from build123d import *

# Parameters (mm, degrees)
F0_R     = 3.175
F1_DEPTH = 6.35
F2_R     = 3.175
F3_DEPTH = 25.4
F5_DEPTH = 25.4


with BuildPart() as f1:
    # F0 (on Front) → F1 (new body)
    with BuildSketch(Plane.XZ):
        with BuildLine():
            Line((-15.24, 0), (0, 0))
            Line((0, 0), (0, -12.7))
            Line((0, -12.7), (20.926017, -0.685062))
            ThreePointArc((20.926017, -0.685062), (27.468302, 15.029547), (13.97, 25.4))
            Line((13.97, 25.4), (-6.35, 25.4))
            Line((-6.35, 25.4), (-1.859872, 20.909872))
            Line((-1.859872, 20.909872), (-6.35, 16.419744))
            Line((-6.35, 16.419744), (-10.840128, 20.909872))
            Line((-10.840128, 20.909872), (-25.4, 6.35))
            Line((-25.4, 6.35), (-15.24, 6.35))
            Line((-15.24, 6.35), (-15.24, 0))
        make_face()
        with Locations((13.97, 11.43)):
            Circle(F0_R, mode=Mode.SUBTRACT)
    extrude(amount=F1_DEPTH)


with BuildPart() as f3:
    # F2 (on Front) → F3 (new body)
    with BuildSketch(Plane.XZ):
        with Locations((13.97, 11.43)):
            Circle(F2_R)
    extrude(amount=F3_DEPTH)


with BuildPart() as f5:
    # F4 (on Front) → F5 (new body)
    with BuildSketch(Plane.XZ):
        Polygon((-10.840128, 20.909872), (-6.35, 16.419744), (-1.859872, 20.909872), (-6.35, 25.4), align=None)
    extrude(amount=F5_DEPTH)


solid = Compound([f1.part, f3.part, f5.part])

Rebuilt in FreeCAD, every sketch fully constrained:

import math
import FreeCAD as App
import Part
import Sketcher
Q = App.Units.Quantity


def add_polygon(sketch, points):
    """Adds a closed chain of lines whose ends are joined by coincident constraints."""
    first, n = sketch.GeometryCount, len(points)
    for a, b in zip(points, points[1:] + points[:1]):
        sketch.addGeometry(Part.LineSegment(App.Vector(*a, 0), App.Vector(*b, 0)), False)
    for i in range(n):
        sketch.addConstraint(Sketcher.Constraint("Coincident", first + i, 2, first + (i + 1) % n, 1))

doc = App.newDocument("Part")
body = doc.addObject("PartDesign::Body", "Body")

sketch1 = body.newObject("Sketcher::SketchObject", "Sketch")
sketch1.AttachmentSupport = (doc.getObject("XZ_Plane"), [""])
sketch1.MapMode = "FlatFace"
sketch1.addGeometry(Part.LineSegment(App.Vector(-15.2, 0, 0), App.Vector(0, 0, 0)), False)
sketch1.addGeometry(Part.LineSegment(App.Vector(0, 0, 0), App.Vector(0, -12.7, 0)), False)
sketch1.addGeometry(Part.LineSegment(App.Vector(0, -12.7, 0), App.Vector(20.9, -0.7, 0)), False)
sketch1.addGeometry(Part.ArcOfCircle(Part.Circle(App.Vector(14, 11.4, 0), App.Vector(0, 0, 1), 14), math.radians(-60), math.radians(90)), False)
sketch1.addGeometry(Part.LineSegment(App.Vector(14, 25.4, 0), App.Vector(-6.3, 25.4, 0)), False)
sketch1.addGeometry(Part.LineSegment(App.Vector(-6.3, 25.4, 0), App.Vector(-1.9, 20.9, 0)), False)
sketch1.addGeometry(Part.LineSegment(App.Vector(-1.9, 20.9, 0), App.Vector(-6.3, 16.4, 0)), False)
sketch1.addGeometry(Part.LineSegment(App.Vector(-6.3, 16.4, 0), App.Vector(-10.8, 20.9, 0)), False)
sketch1.addGeometry(Part.LineSegment(App.Vector(-10.8, 20.9, 0), App.Vector(-25.4, 6.3, 0)), False)
sketch1.addGeometry(Part.LineSegment(App.Vector(-25.4, 6.3, 0), App.Vector(-15.2, 6.3, 0)), False)
sketch1.addGeometry(Part.LineSegment(App.Vector(-15.2, 6.3, 0), App.Vector(-15.2, 0, 0)), False)
sketch1.addGeometry(Part.Circle(App.Vector(14, 11.4, 0), App.Vector(0, 0, 1), 3.2), False)
sketch1.addConstraint(Sketcher.Constraint("Coincident", 0, 2, 1, 1))
sketch1.addConstraint(Sketcher.Constraint("Coincident", 1, 2, 2, 1))
sketch1.addConstraint(Sketcher.Constraint("Tangent", 2, 2, 3, 1))
sketch1.addConstraint(Sketcher.Constraint("Tangent", 3, 2, 4, 1))
sketch1.addConstraint(Sketcher.Constraint("Coincident", 4, 2, 5, 1))
sketch1.addConstraint(Sketcher.Constraint("Coincident", 5, 2, 6, 1))
sketch1.addConstraint(Sketcher.Constraint("Coincident", 6, 2, 7, 1))
sketch1.addConstraint(Sketcher.Constraint("Coincident", 7, 2, 8, 1))
sketch1.addConstraint(Sketcher.Constraint("Coincident", 8, 2, 9, 1))
sketch1.addConstraint(Sketcher.Constraint("Coincident", 9, 2, 10, 1))
sketch1.addConstraint(Sketcher.Constraint("Coincident", 10, 2, 0, 1))
sketch1.addConstraint(Sketcher.Constraint("Horizontal", 0))
sketch1.addConstraint(Sketcher.Constraint("Vertical", 1))
sketch1.addConstraint(Sketcher.Constraint("Horizontal", 4))
sketch1.addConstraint(Sketcher.Constraint("Horizontal", 9))
sketch1.addConstraint(Sketcher.Constraint("Vertical", 10))
sketch1.addConstraint(Sketcher.Constraint("Coincident", 0, 2, -1, 1))
sketch1.addConstraint(Sketcher.Constraint("Coincident", 11, 3, 3, 3))
sketch1.addConstraint(Sketcher.Constraint("Perpendicular", 5, 6))
sketch1.addConstraint(Sketcher.Constraint("Perpendicular", 6, 7))
sketch1.addConstraint(Sketcher.Constraint("Perpendicular", 7, 8))
sketch1.addConstraint(Sketcher.Constraint("Horizontal", 5, 2, 7, 2))
sketch1.addConstraint(Sketcher.Constraint("Vertical", 4, 2, 6, 2))
sketch1.addConstraint(Sketcher.Constraint("Equal", 5, 6))
sketch1.addConstraint(Sketcher.Constraint("Diameter", 11, Q("0.25 in")))
sketch1.addConstraint(Sketcher.Constraint("Radius", 3, Q("0.55 in")))
sketch1.addConstraint(Sketcher.Constraint("DistanceX", 0, 1, 0, 2, Q("0.6 in")))
sketch1.addConstraint(Sketcher.Constraint("DistanceX", 4, 2, 4, 1, Q("0.8 in")))
sketch1.addConstraint(Sketcher.Constraint("DistanceX", 9, 1, 9, 2, Q("0.4 in")))
sketch1.addConstraint(Sketcher.Constraint("DistanceY", 1, 2, 1, 1, Q("0.5 in")))
sketch1.addConstraint(Sketcher.Constraint("DistanceY", -1, 1, 3, 2, Q("1 in")))
sketch1.addConstraint(Sketcher.Constraint("DistanceY", 10, 2, 10, 1, Q("0.25 in")))
sketch1.addConstraint(Sketcher.Constraint("Distance", 5, Q("0.25 in")))
pad1 = body.newObject("PartDesign::Pad", "Pad")
pad1.Profile = sketch1
pad1.Length = Q("0.25 in")
body2 = doc.addObject("PartDesign::Body", "Body001")

sketch2 = body2.newObject("Sketcher::SketchObject", "Sketch001")
sketch2.AttachmentSupport = (doc.getObject("XZ_Plane001"), [""])
sketch2.MapMode = "FlatFace"
sketch2.addGeometry(Part.Circle(App.Vector(14, 11.4, 0), App.Vector(0, 0, 1), 3.2), False)
sketch2.addConstraint(Sketcher.Constraint("Diameter", 0, Q("0.25 in")))
sketch2.addConstraint(Sketcher.Constraint("DistanceX", -1, 1, 0, 3, Q("0.55 in")))
sketch2.addConstraint(Sketcher.Constraint("DistanceY", -1, 1, 0, 3, Q("0.45 in")))
pad2 = body2.newObject("PartDesign::Pad", "Pad001")
pad2.Profile = sketch2
pad2.Length = Q("1 in")
body3 = doc.addObject("PartDesign::Body", "Body002")

sketch3 = body3.newObject("Sketcher::SketchObject", "Sketch002")
sketch3.AttachmentSupport = (doc.getObject("XZ_Plane002"), [""])
sketch3.MapMode = "FlatFace"
add_polygon(sketch3, [(-11, 21), (-6, 16), (-2, 21), (-6, 25)])
sketch3.addConstraint(Sketcher.Constraint("Perpendicular", 0, 1))
sketch3.addConstraint(Sketcher.Constraint("Perpendicular", 1, 2))
sketch3.addConstraint(Sketcher.Constraint("Perpendicular", 2, 3))
sketch3.addConstraint(Sketcher.Constraint("Horizontal", 1, 2, 3, 2))
sketch3.addConstraint(Sketcher.Constraint("Vertical", 0, 2, 2, 2))
sketch3.addConstraint(Sketcher.Constraint("DistanceY", -1, 1, 2, 2, Q("1 in")))
sketch3.addConstraint(Sketcher.Constraint("Distance", 0, Q("0.25 in")))
sketch3.addConstraint(Sketcher.Constraint("DistanceX", 0, 2, -1, 1, Q("0.25 in")))
pad3 = body3.newObject("PartDesign::Pad", "Pad002")
pad3.Profile = sketch3
pad3.Length = Q("1 in")

doc.recompute()
